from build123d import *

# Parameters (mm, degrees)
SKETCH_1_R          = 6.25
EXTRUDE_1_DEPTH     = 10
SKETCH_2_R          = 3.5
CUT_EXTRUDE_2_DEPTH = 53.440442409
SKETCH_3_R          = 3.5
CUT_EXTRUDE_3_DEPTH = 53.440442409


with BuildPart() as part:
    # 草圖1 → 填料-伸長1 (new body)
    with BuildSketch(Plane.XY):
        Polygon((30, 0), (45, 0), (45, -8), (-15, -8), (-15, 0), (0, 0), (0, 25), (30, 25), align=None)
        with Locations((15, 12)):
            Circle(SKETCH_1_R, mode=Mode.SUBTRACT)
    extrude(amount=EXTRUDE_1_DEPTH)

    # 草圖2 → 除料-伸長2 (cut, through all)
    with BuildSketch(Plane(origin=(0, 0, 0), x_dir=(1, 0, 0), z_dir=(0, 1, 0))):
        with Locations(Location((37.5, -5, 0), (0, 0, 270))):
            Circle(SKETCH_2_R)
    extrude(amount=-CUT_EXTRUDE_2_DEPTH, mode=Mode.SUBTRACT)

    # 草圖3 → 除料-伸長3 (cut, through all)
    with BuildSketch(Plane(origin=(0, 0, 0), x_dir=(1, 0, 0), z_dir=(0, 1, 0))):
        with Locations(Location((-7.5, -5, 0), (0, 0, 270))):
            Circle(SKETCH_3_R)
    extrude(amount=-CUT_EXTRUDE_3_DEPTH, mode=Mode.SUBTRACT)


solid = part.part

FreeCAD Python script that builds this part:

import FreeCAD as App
import Part
import Sketcher
from FreeCAD import Vector
Q = App.Units.Quantity


def add_polygon(sketch, points):
    """Adds a closed chain of lines whose ends are joined by coincident constraints."""
    first, n = sketch.GeometryCount, len(points)
    for a, b in zip(points, points[1:] + points[:1]):
        sketch.addGeometry(Part.LineSegment(App.Vector(*a, 0), App.Vector(*b, 0)), False)
    for i in range(n):
        sketch.addConstraint(Sketcher.Constraint("Coincident", first + i, 2, first + (i + 1) % n, 1))

doc = App.newDocument("Part")
body = doc.addObject("PartDesign::Body", "Body")

# Sketch on XY plane
sketch1 = body.newObject("Sketcher::SketchObject", "Sketch")
sketch1.AttachmentSupport = (doc.getObject("XY_Plane"), [""])
sketch1.MapMode = "FlatFace"
add_polygon(sketch1, [(45, 0), (30, 0), (30, 25), (0, 25), (0, 0), (-15, 0), (-15, -8), (45, -8)])  # lines 0-7
sketch1.addGeometry(Part.Circle(Vector(15, 12, 0), Vector(0, 0, 1), 6), False)  # 8
sketch1.addConstraint(Sketcher.Constraint("Horizontal", 0))
sketch1.addConstraint(Sketcher.Constraint("Vertical", 1))
sketch1.addConstraint(Sketcher.Constraint("Horizontal", 2))
sketch1.addConstraint(Sketcher.Constraint("Vertical", 3))
sketch1.addConstraint(Sketcher.Constraint("Horizontal", 4))
sketch1.addConstraint(Sketcher.Constraint("Vertical", 5))
sketch1.addConstraint(Sketcher.Constraint("Horizontal", 6))
sketch1.addConstraint(Sketcher.Constraint("Vertical", 7))
sketch1.addConstraint(Sketcher.Constraint("Coincident", 3, 2, -1, 1))
sketch1.addConstraint(Sketcher.Constraint("PointOnObject", 0, 2, -1))
sketch1.addConstraint(Sketcher.Constraint("Equal", 0, 4))
sketch1.addConstraint(Sketcher.Constraint("Diameter", 8, Q("12.5 mm")))
sketch1.addConstraint(Sketcher.Constraint("DistanceX", 0, 2, 0, 1, Q("15 mm")))
sketch1.addConstraint(Sketcher.Constraint("DistanceX", 2, 2, 2, 1, Q("30 mm")))
sketch1.addConstraint(Sketcher.Constraint("DistanceY", 1, 1, 1, 2, Q("25 mm")))
sketch1.addConstraint(Sketcher.Constraint("DistanceY", 5, 2, 5, 1, Q("8 mm")))
sketch1.addConstraint(Sketcher.Constraint("DistanceX", -1, 1, 8, 3, Q("15 mm")))
sketch1.addConstraint(Sketcher.Constraint("DistanceY", -1, 1, 8, 3, Q("12 mm")))
pad1 = body.newObject("PartDesign::Pad", "Pad")
pad1.Profile = sketch1
pad1.Length = 10

# Sketch on XZ plane
sketch2 = body.newObject("Sketcher::SketchObject", "Sketch001")
sketch2.AttachmentSupport = (doc.getObject("XZ_Plane"), [""])
sketch2.MapMode = "FlatFace"
sketch2.addGeometry(Part.Circle(Vector(37.5, 5, 0), Vector(0, 0, 1), 3.5), False)
sketch2.addConstraint(Sketcher.Constraint("Diameter", 0, Q("7 mm")))
sketch2.addConstraint(Sketcher.Constraint("DistanceY", -1, 1, 0, 3, Q("5 mm")))
sketch2.addConstraint(Sketcher.Constraint("DistanceX", -1, 1, 0, 3, Q("37.5 mm")))
pocket1 = body.newObject("PartDesign::Pocket", "Pocket")
pocket1.Profile = sketch2
pocket1.Type = "ThroughAll"
pocket1.Reversed = True

# Sketch on XZ plane
sketch3 = body.newObject("Sketcher::SketchObject", "Sketch002")
sketch3.AttachmentSupport = (doc.getObject("XZ_Plane"), [""])
sketch3.MapMode = "FlatFace"
sketch3.addGeometry(Part.Circle(Vector(-7.5, 5, 0), Vector(0, 0, 1), 3.5), False)
sketch3.addConstraint(Sketcher.Constraint("Diameter", 0, Q("7 mm")))
sketch3.addConstraint(Sketcher.Constraint("DistanceY", -1, 1, 0, 3, Q("5 mm")))
sketch3.addConstraint(Sketcher.Constraint("DistanceX", 0, 3, -1, 1, Q("7.5 mm")))
pocket2 = body.newObject("PartDesign::Pocket", "Pocket001")
pocket2.Profile = sketch3
pocket2.Type = "ThroughAll"
pocket2.Reversed = True

doc.recompute()
